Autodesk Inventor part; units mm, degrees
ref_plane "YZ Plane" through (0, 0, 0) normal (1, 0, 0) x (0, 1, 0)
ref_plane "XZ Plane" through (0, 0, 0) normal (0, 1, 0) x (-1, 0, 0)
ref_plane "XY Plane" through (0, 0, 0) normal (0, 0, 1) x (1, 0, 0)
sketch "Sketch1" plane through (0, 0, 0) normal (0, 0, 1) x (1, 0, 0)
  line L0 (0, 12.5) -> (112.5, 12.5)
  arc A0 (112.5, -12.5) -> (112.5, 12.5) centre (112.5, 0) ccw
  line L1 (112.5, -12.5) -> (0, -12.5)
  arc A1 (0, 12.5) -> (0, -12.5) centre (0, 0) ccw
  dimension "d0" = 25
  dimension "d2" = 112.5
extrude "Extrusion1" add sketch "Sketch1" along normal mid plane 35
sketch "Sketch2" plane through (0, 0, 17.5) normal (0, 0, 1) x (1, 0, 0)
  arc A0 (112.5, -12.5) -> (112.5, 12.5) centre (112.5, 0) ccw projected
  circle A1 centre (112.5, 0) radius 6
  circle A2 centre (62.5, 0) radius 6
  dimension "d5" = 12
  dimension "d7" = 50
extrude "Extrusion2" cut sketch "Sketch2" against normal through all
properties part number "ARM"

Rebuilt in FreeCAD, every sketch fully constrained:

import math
import FreeCAD as App
import Part
import Sketcher
from FreeCAD import Vector
Q = App.Units.Quantity

doc = App.newDocument("Part")
body = doc.addObject("PartDesign::Body", "Body")

sketch1 = body.newObject("Sketcher::SketchObject", "Sketch")
sketch1.AttachmentSupport = (doc.getObject("XY_Plane"), [""])
sketch1.MapMode = "FlatFace"
sketch1.addGeometry(Part.LineSegment(Vector(112, 12, 0), Vector(0, 12, 0)), False)
sketch1.addGeometry(Part.ArcOfCircle(Part.Circle(Vector(0, 0, 0), Vector(0, 0, 1), 12), math.radians(90), math.radians(270)), False)
sketch1.addGeometry(Part.LineSegment(Vector(0, -12, 0), Vector(112, -12, 0)), False)
sketch1.addGeometry(Part.ArcOfCircle(Part.Circle(Vector(112, 0, 0), Vector(0, 0, 1), 12), math.radians(-90), math.radians(90)), False)
sketch1.addConstraint(Sketcher.Constraint("Tangent", 0, 2, 1, 1))
sketch1.addConstraint(Sketcher.Constraint("Tangent", 1, 2, 2, 1))
sketch1.addConstraint(Sketcher.Constraint("Tangent", 2, 2, 3, 1))
sketch1.addConstraint(Sketcher.Constraint("Tangent", 3, 2, 0, 1))
sketch1.addConstraint(Sketcher.Constraint("Horizontal", 0))
sketch1.addConstraint(Sketcher.Constraint("Horizontal", 2))
sketch1.addConstraint(Sketcher.Constraint("Coincident", 1, 3, -1, 1))
sketch1.addConstraint(Sketcher.Constraint("Radius", 1, Q("12.5 mm")))
sketch1.addConstraint(Sketcher.Constraint("DistanceX", 0, 2, 0, 1, Q("112.5 mm")))
pad1 = body.newObject("PartDesign::Pad", "Pad")
pad1.Profile = sketch1
pad1.Length = 35
pad1.Midplane = True

sketch2 = body.newObject("Sketcher::SketchObject", "Sketch001")
sketch2.AttachmentSupport = (doc.getObject("XY_Plane"), [""])
sketch2.MapMode = "FlatFace"
sketch2.AttachmentOffset = App.Placement(Vector(0, 0, 17.5), App.Rotation())
sketch2.addGeometry(Part.Circle(Vector(112, 0, 0), Vector(0, 0, 1), 6), False)
sketch2.addGeometry(Part.Circle(Vector(62, 0, 0), Vector(0, 0, 1), 6), False)
sketch2.addConstraint(Sketcher.Constraint("Equal", 0, 1))
sketch2.addConstraint(Sketcher.Constraint("PointOnObject", 0, 3, -1))
sketch2.addConstraint(Sketcher.Constraint("PointOnObject", 1, 3, -1))
sketch2.addConstraint(Sketcher.Constraint("Diameter", 0, Q("12 mm")))
sketch2.addConstraint(Sketcher.Constraint("DistanceX", 1, 3, 0, 3, Q("50 mm")))
sketch2.addConstraint(Sketcher.Constraint("DistanceX", -1, 1, 0, 3, Q("112.5 mm")))
pocket1 = body.newObject("PartDesign::Pocket", "Pocket")
pocket1.Profile = sketch2
pocket1.Type = "ThroughAll"

doc.recompute()
